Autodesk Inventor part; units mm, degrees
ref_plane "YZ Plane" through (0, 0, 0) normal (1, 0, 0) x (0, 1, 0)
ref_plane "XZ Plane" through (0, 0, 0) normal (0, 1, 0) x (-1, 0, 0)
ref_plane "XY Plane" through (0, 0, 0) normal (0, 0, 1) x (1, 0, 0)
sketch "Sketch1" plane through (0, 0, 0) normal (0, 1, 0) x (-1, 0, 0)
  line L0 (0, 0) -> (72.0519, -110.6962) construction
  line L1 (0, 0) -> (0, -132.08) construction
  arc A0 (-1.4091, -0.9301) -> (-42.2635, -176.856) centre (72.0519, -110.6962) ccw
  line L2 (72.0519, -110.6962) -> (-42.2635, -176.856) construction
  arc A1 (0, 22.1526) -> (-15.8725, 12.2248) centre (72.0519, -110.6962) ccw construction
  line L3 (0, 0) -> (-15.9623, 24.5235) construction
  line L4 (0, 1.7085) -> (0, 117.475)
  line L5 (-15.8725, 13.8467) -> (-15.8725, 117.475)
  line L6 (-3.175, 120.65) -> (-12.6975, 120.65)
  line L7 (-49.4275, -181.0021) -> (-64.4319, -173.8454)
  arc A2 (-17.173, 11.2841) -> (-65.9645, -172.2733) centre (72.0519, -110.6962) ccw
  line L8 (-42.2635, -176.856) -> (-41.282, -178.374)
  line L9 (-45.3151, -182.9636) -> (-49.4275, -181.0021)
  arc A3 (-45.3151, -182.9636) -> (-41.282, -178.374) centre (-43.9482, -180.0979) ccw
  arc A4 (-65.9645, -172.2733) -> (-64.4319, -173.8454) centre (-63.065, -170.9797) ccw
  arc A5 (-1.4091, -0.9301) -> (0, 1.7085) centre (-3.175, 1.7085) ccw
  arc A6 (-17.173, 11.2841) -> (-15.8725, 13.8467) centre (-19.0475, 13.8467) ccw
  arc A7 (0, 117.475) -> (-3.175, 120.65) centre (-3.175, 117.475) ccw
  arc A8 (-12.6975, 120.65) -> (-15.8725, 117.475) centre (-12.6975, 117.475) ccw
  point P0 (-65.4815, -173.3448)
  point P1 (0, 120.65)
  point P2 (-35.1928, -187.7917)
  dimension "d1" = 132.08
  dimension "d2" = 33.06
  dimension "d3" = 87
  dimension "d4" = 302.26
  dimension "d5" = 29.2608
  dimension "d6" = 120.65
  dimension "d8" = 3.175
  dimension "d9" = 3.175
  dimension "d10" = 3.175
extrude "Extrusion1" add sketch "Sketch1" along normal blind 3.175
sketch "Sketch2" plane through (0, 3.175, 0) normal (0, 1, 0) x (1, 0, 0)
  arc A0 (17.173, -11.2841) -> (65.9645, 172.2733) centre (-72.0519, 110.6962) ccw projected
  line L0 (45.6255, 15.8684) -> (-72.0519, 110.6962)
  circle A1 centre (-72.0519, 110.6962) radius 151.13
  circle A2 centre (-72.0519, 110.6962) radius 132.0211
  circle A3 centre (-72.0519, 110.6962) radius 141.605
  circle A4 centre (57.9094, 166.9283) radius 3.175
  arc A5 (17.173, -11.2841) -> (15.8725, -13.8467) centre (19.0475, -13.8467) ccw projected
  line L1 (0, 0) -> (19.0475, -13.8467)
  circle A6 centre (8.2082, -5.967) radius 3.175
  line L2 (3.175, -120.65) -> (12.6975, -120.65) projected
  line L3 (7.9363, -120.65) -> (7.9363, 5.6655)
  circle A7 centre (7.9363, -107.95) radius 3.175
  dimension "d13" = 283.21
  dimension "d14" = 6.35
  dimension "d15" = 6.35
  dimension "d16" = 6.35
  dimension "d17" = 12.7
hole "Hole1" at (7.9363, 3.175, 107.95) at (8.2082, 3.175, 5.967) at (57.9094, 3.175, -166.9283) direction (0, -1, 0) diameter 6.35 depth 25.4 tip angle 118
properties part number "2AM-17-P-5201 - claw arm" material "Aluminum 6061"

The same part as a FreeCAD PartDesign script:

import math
import FreeCAD as App
import Part
import Sketcher

V = App.Vector
Q = App.Units.Quantity

doc = App.newDocument("Part")
params = doc.addObject("Spreadsheet::Sheet", "Params")
for row, (alias, value) in enumerate([
    ("sketch1_radius", "5.2 in"),
    ("sketch1_radius2", "5.95 in"),
    ("sketch1_radius3", "0.125 in"),
    ("sketch1_radius4", "0.125 in"),
    ("sketch1_radius5", "0.125 in"),
    ("pad1_length", "0.125 in"),
    ("sketch2_diameter", "0.25 in"),
    ("hole_diameter", "0.25 in"),
    ("hole_depth", "1 in"),
], start=1):
    params.set(f"A{row}", alias)
    params.set(f"B{row}", "=" + value)
    params.setAlias(f"B{row}", alias)

body = doc.addObject("PartDesign::Body", "Body")

sketch1 = body.newObject("Sketcher::SketchObject", "Sketch")
sketch1.AttachmentSupport = (doc.getObject("XZ_Plane"), [""])
sketch1.MapMode = "FlatFace"
sketch1.addGeometry([
    Part.ArcOfCircle(Part.Circle(V(-72.0519, -110.6962, 0), V(0, 0, 1), 132.079958), math.radians(-30.060023), math.radians(56.20757)),
    Part.ArcOfCircle(Part.Circle(V(3.175, 1.7085, 0), V(0, 0, 1), 3.174998), math.radians(180), math.radians(236.207329)),
    Part.LineSegment(V(0, 1.7085, 0), V(0, 117.475, 0)),
    Part.ArcOfCircle(Part.Circle(V(3.175, 117.475, 0), V(0, 0, 1), 3.175), math.radians(90), math.radians(180)),
    Part.LineSegment(V(3.175, 120.65, 0), V(12.6975, 120.65, 0)),
    Part.ArcOfCircle(Part.Circle(V(12.6975, 117.475, 0), V(0, 0, 1), 3.175), math.radians(0), math.radians(90)),
    Part.LineSegment(V(15.8725, 117.475, 0), V(15.8725, 13.8467, 0)),
    Part.ArcOfCircle(Part.Circle(V(19.0475, 13.8467, 0), V(0, 0, 1), 3.175007), math.radians(180), math.radians(233.81514)),
    Part.ArcOfCircle(Part.Circle(V(-72.0519, -110.6962, 0), V(0, 0, 1), 151.129998), math.radians(-24.044414), math.radians(53.815659)),
    Part.ArcOfCircle(Part.Circle(V(63.065, -170.9797, 0), V(0, 0, 1), 3.174981), math.radians(-64.499492), math.radians(-24.043843)),
    Part.LineSegment(V(64.4319, -173.8454, 0), V(49.4275, -181.0021, 0)),
    Part.LineSegment(V(49.4275, -181.0021, 0), V(45.3151, -182.9636, 0)),
    Part.ArcOfCircle(Part.Circle(V(43.9482, -180.0979, 0), V(0, 0, 1), 3.175004), math.radians(147.114275), math.radians(295.500508)),
    Part.LineSegment(V(41.282, -178.374, 0), V(42.2635, -176.856, 0)),
], False)
sketch1.addConstraint([
    Sketcher.Constraint("Coincident", 0, 2, 1, 2),
    Sketcher.Constraint("Coincident", 1, 1, 2, 1),
    Sketcher.Constraint("Coincident", 2, 2, 3, 2),
    Sketcher.Constraint("Coincident", 3, 1, 4, 1),
    Sketcher.Constraint("Coincident", 4, 2, 5, 2),
    Sketcher.Constraint("Coincident", 5, 1, 6, 1),
    Sketcher.Constraint("Coincident", 6, 2, 7, 1),
    Sketcher.Constraint("Coincident", 7, 2, 8, 2),
    Sketcher.Constraint("Coincident", 8, 1, 9, 2),
    Sketcher.Constraint("Coincident", 9, 1, 10, 1),
    Sketcher.Constraint("Coincident", 10, 2, 11, 1),
    Sketcher.Constraint("Coincident", 11, 2, 12, 2),
    Sketcher.Constraint("Coincident", 12, 1, 13, 1),
    Sketcher.Constraint("Coincident", 13, 2, 0, 1),
    Sketcher.Constraint("Vertical", 2),
    Sketcher.Constraint("Horizontal", 4),
    Sketcher.Constraint("Vertical", 6),
    Sketcher.Constraint("Coincident", 8, 3, 0, 3),
    Sketcher.Constraint("PointOnObject", 1, 1, -2),
    Sketcher.Constraint("Radius", 0, Q("5.2 in")),
    Sketcher.Constraint("Radius", 8, Q("5.95 in")),
    Sketcher.Constraint("Radius", 1, Q("0.125 in")),
    Sketcher.Constraint("Radius", 3, Q("0.125 in")),
    Sketcher.Constraint("Radius", 5, Q("0.125 in")),
    Sketcher.Constraint("Radius", 7, Q("0.125 in")),
    Sketcher.Constraint("Radius", 9, Q("0.125 in")),
    Sketcher.Constraint("Radius", 12, Q("0.125 in")),
    Sketcher.Constraint("DistanceY", -1, 1, 3, 1, Q("4.75 in")),
    Sketcher.Constraint("DistanceX", -1, 1, 3, 1, Q("0.125 in")),
    Sketcher.Constraint("DistanceY", 2, 2, 3, 1, Q("0.125 in")),
    Sketcher.Constraint("DistanceX", 4, 2, 5, 1, Q("0.125 in")),
    Sketcher.Constraint("DistanceY", 5, 1, 4, 2, Q("0.125 in")),
    Sketcher.Constraint("DistanceX", 4, 1, 4, 2, Q("0.3749 in")),
    Sketcher.Constraint("DistanceY", 1, 3, 7, 2, Q("0.377 in")),
    Sketcher.Constraint("DistanceY", 1, 1, 7, 2, Q("0.377 in")),
    Sketcher.Constraint("DistanceY", 2, 1, 2, 2, Q("115.7665 mm")),
    Sketcher.Constraint("DistanceY", 6, 2, 6, 1, Q("103.6283 mm")),
    Sketcher.Constraint("DistanceX", 0, 3, -1, 1, Q("2.8367 in")),
    Sketcher.Constraint("DistanceX", -1, 1, 9, 1, Q("2.5367 in")),
    Sketcher.Constraint("DistanceY", 9, 1, -1, 1, Q("6.8443 in")),
    Sketcher.Constraint("DistanceY", 11, 2, -1, 1, Q("7.2033 in")),
    Sketcher.Constraint("DistanceY", 12, 1, -1, 1, Q("7.0226 in")),
    Sketcher.Constraint("DistanceY", 0, 3, 0, 2, Q("4.3215 in")),
    Sketcher.Constraint("DistanceY", 8, 1, 0, 3, Q("2.4243 in")),
    Sketcher.Constraint("DistanceY", 10, 2, 12, 3, Q("0.0356 in")),
    Sketcher.Constraint("DistanceX", 10, 2, 9, 3, Q("0.5369 in")),
    Sketcher.Constraint("DistanceX", 11, 2, 10, 2, Q("0.1619 in")),
    Sketcher.Constraint("DistanceX", 12, 1, 10, 2, Q("0.3207 in")),
    Sketcher.Constraint("Distance", 13, Q("1.8077 mm")),
])
sketch1.setExpression("Constraints[19]", "Params.sketch1_radius")
sketch1.setExpression("Constraints[20]", "Params.sketch1_radius2")
sketch1.setExpression("Constraints[21]", "Params.sketch1_radius3")
sketch1.setExpression("Constraints[22]", "Params.sketch1_radius4")
sketch1.setExpression("Constraints[23]", "Params.sketch1_radius5")
pad1 = body.newObject("PartDesign::Pad", "Pad")
pad1.Profile = sketch1
pad1.setExpression("Length", "Params.pad1_length")
pad1.Reversed = True

sketch2 = body.newObject("Sketcher::SketchObject", "Sketch001")
sketch2.AttachmentSupport = (doc.getObject("XZ_Plane"), [""])
sketch2.MapMode = "FlatFace"
sketch2.AttachmentOffset = App.Placement(V(0, 0, -0.125 * 25.4), App.Rotation())
sketch2.addGeometry([
    Part.Circle(V(7.9, 108, 0), V(0, 0, 1), 3.2),
    Part.Circle(V(8.2, 6, 0), V(0, 0, 1), 3.2),
    Part.Circle(V(57.9, -166.9, 0), V(0, 0, 1), 3.2),
], False)
sketch2.addConstraint([
    Sketcher.Constraint("Equal", 0, 1),
    Sketcher.Constraint("Equal", 1, 2),
    Sketcher.Constraint("Diameter", 0, Q("0.25 in")),
    Sketcher.Constraint("DistanceY", -1, 1, 0, 3, Q("4.25 in")),
    Sketcher.Constraint("DistanceX", -1, 1, 2, 3, Q("2.2799 in")),
    Sketcher.Constraint("DistanceX", 0, 3, 1, 3, Q("0.0107 in")),
    Sketcher.Constraint("DistanceY", 2, 3, 1, 3, Q("6.8069 in")),
    Sketcher.Constraint("DistanceX", -1, 1, 0, 3, Q("7.9363 mm")),
    Sketcher.Constraint("DistanceY", -1, 1, 1, 3, Q("5.967 mm")),
])
sketch2.setExpression("Constraints[2]", "Params.sketch2_diameter")
doc.recompute()
hole = body.newObject("PartDesign::Hole", "Hole")
hole.Profile = sketch2
hole.ThreadType = "None"
hole.setExpression("Diameter", "Params.hole_diameter")
hole.DepthType = "Dimension"
hole.setExpression("Depth", "Params.hole_depth")
hole.DrillPoint = "Angled"
hole.DrillPointAngle = 118
hole.Reversed = True

doc.recompute()
